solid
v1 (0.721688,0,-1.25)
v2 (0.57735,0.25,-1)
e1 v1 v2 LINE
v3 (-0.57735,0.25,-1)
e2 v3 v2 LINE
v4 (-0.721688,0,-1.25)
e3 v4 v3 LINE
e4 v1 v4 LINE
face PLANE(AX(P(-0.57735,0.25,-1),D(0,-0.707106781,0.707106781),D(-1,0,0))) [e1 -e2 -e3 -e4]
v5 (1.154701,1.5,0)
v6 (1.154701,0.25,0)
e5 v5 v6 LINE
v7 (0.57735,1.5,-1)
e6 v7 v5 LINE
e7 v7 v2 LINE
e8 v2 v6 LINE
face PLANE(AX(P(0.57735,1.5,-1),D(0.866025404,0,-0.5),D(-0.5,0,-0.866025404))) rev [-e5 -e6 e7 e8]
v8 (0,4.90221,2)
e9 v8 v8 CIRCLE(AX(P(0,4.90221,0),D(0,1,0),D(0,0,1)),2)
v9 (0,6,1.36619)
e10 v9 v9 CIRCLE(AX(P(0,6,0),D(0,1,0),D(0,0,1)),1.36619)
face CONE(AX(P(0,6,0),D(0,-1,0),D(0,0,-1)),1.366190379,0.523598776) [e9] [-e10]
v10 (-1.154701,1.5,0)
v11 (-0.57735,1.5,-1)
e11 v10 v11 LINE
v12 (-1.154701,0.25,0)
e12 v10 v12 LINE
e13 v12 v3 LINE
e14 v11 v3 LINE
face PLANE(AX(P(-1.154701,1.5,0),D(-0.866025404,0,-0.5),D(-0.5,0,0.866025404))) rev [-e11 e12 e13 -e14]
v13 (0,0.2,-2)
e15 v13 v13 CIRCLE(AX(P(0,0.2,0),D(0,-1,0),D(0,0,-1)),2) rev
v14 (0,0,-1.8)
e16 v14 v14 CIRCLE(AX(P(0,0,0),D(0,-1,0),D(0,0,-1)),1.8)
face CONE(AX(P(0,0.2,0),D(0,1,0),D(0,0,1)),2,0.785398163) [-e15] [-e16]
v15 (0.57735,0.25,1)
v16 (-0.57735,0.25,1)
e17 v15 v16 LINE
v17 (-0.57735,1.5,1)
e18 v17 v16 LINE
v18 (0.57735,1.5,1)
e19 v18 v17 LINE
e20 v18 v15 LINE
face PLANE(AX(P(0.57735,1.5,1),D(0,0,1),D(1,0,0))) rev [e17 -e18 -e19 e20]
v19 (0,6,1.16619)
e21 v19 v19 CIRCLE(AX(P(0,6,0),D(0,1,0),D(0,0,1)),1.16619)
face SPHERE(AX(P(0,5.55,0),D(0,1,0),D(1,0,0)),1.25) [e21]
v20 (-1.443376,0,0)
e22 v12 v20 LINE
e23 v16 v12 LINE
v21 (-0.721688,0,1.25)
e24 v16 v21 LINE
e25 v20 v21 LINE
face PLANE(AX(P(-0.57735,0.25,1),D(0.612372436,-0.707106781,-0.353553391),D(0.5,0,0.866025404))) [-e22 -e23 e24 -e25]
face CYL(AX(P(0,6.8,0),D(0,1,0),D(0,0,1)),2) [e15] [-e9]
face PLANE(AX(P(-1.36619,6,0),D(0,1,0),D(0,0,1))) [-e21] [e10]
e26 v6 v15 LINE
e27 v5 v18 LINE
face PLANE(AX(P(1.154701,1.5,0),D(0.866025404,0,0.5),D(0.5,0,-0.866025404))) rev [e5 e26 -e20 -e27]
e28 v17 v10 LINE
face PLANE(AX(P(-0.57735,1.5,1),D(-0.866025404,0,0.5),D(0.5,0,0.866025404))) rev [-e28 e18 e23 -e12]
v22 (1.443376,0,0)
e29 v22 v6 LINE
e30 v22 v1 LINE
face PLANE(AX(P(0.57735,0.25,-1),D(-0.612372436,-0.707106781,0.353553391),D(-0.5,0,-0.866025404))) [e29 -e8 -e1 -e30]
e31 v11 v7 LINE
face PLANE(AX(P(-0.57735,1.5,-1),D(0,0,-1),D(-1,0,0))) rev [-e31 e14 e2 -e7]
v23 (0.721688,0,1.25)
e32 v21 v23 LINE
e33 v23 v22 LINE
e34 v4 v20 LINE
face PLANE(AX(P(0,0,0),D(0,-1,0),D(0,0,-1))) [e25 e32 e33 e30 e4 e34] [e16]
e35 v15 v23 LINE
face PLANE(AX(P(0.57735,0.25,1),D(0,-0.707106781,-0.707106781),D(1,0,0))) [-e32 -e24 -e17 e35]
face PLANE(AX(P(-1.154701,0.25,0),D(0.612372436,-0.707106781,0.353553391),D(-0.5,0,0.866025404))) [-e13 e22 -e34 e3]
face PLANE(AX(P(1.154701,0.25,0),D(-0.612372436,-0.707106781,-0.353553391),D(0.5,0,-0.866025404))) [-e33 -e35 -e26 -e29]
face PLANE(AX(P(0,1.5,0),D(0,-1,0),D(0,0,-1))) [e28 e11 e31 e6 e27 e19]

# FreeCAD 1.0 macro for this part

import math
import FreeCAD as App
import Part
import Sketcher
from FreeCAD import Vector
Q = App.Units.Quantity


def edges_at(feature, points):
    """Names of the edges that pass closest to the given points."""
    edges = feature.Shape.Edges
    near = lambda p: min(range(len(edges)), key=lambda i: edges[i].distToShape(Part.Vertex(*p))[0])
    return sorted({f"Edge{near(p) + 1}" for p in points})

doc = App.newDocument("Part")
body = doc.addObject("PartDesign::Body", "Body")

# Sketch on XY plane
sketch1 = body.newObject("Sketcher::SketchObject", "Sketch")
sketch1.AttachmentSupport = (doc.getObject("XY_Plane"), [""])
sketch1.MapMode = "FlatFace"
sketch1.addGeometry(Part.LineSegment(Vector(-2, 0, 0), Vector(0, 0, 0)), False)
sketch1.addGeometry(Part.LineSegment(Vector(0, 0, 0), Vector(0, 6.8, 0)), False)
sketch1.addGeometry(Part.ArcOfCircle(Part.Circle(Vector(0, 5.55, 0), Vector(0, 0, 1), 1.25), math.radians(90), math.radians(159)), False)
sketch1.addGeometry(Part.LineSegment(Vector(-1.17, 6, 0), Vector(-1.37, 6, 0)), False)
sketch1.addGeometry(Part.LineSegment(Vector(-1.37, 6, 0), Vector(-2, 4.9, 0)), False)
sketch1.addGeometry(Part.LineSegment(Vector(-2, 4.9, 0), Vector(-2, 0, 0)), False)
sketch1.addConstraint(Sketcher.Constraint("Coincident", 0, 2, 1, 1))
sketch1.addConstraint(Sketcher.Constraint("Coincident", 1, 2, 2, 1))
sketch1.addConstraint(Sketcher.Constraint("Coincident", 2, 2, 3, 1))
sketch1.addConstraint(Sketcher.Constraint("Coincident", 3, 2, 4, 1))
sketch1.addConstraint(Sketcher.Constraint("Coincident", 4, 2, 5, 1))
sketch1.addConstraint(Sketcher.Constraint("Coincident", 5, 2, 0, 1))
sketch1.addConstraint(Sketcher.Constraint("Horizontal", 0))
sketch1.addConstraint(Sketcher.Constraint("Vertical", 1))
sketch1.addConstraint(Sketcher.Constraint("Horizontal", 3))
sketch1.addConstraint(Sketcher.Constraint("Vertical", 5))
sketch1.addConstraint(Sketcher.Constraint("Coincident", 0, 2, -1, 1))
sketch1.addConstraint(Sketcher.Constraint("PointOnObject", 2, 3, -2))
sketch1.addConstraint(Sketcher.Constraint("DistanceX", 0, 1, 0, 2, Q("2 mm")))
sketch1.addConstraint(Sketcher.Constraint("Angle", 4, Q("-120 deg")))
sketch1.addConstraint(Sketcher.Constraint("Radius", 2, Q("1.25 mm")))
sketch1.addConstraint(Sketcher.Constraint("DistanceX", 3, 2, 3, 1, Q("0.2 mm")))
sketch1.addConstraint(Sketcher.Constraint("DistanceY", 1, 1, 1, 2, Q("6.8 mm")))
sketch1.addConstraint(Sketcher.Constraint("DistanceY", -1, 1, 2, 2, Q("6 mm")))
revolution = body.newObject("PartDesign::Revolution", "Revolution")
revolution.Profile = sketch1
revolution.ReferenceAxis = (sketch1, ["V_Axis"])
revolution.Angle = 360
doc.recompute()

chamfer = body.newObject("PartDesign::Chamfer", "Chamfer")
chamfer.Base = (revolution, edges_at(revolution, [(0, 0, -2)]))
chamfer.Size = 0.2

# Sketch on XZ plane
sketch2 = body.newObject("Sketcher::SketchObject", "Sketch001")
sketch2.AttachmentSupport = (doc.getObject("XZ_Plane"), [""])
sketch2.MapMode = "FlatFace"
sketch2.addGeometry(Part.LineSegment(Vector(1.2, 0, 0), Vector(0.6, 1, 0)), False)
sketch2.addGeometry(Part.LineSegment(Vector(0.6, 1, 0), Vector(-0.6, 1, 0)), False)
sketch2.addGeometry(Part.LineSegment(Vector(-0.6, 1, 0), Vector(-1.2, 0, 0)), False)
sketch2.addGeometry(Part.LineSegment(Vector(-1.2, 0, 0), Vector(-0.6, -1, 0)), False)
sketch2.addGeometry(Part.LineSegment(Vector(-0.6, -1, 0), Vector(0.6, -1, 0)), False)
sketch2.addGeometry(Part.LineSegment(Vector(0.6, -1, 0), Vector(1.2, 0, 0)), False)
sketch2.addConstraint(Sketcher.Constraint("Coincident", 0, 2, 1, 1))
sketch2.addConstraint(Sketcher.Constraint("Coincident", 1, 2, 2, 1))
sketch2.addConstraint(Sketcher.Constraint("Coincident", 2, 2, 3, 1))
sketch2.addConstraint(Sketcher.Constraint("Coincident", 3, 2, 4, 1))
sketch2.addConstraint(Sketcher.Constraint("Coincident", 4, 2, 5, 1))
sketch2.addConstraint(Sketcher.Constraint("Coincident", 5, 2, 0, 1))
sketch2.addConstraint(Sketcher.Constraint("Horizontal", 1))
sketch2.addConstraint(Sketcher.Constraint("Horizontal", 4))
sketch2.addConstraint(Sketcher.Constraint("Symmetric", 0, 2, 3, 2, -1, 1))
sketch2.addConstraint(Sketcher.Constraint("Symmetric", 2, 2, 5, 2, -1, 1))
sketch2.addConstraint(Sketcher.Constraint("PointOnObject", 2, 2, -1))
sketch2.addConstraint(Sketcher.Constraint("Parallel", 2, 5))
sketch2.addConstraint(Sketcher.Constraint("Vertical", 1, 2, 3, 2))
sketch2.addConstraint(Sketcher.Constraint("Angle", 0, Q("120 deg")))
sketch2.addConstraint(Sketcher.Constraint("DistanceY", -1, 1, 0, 2, Q("1 mm")))
sketch2.addConstraint(Sketcher.Constraint("DistanceX", 1, 2, 1, 1, Q("1.154701 mm")))
pocket1 = body.newObject("PartDesign::Pocket", "Pocket")
pocket1.Profile = sketch2
pocket1.Length = 1.5
doc.recompute()

chamfer2 = body.newObject("PartDesign::Chamfer", "Chamfer001")
chamfer2.Base = (pocket1, edges_at(pocket1, [
    (0.866, 0, -0.5),
    (0.866, 0, 0.5),
    (0, 0, 1),
    (-0.866, 0, 0.5),
    (-0.866, 0, -0.5),
    (0, 0, -1),
]))
chamfer2.Size = 0.25

doc.recompute()
